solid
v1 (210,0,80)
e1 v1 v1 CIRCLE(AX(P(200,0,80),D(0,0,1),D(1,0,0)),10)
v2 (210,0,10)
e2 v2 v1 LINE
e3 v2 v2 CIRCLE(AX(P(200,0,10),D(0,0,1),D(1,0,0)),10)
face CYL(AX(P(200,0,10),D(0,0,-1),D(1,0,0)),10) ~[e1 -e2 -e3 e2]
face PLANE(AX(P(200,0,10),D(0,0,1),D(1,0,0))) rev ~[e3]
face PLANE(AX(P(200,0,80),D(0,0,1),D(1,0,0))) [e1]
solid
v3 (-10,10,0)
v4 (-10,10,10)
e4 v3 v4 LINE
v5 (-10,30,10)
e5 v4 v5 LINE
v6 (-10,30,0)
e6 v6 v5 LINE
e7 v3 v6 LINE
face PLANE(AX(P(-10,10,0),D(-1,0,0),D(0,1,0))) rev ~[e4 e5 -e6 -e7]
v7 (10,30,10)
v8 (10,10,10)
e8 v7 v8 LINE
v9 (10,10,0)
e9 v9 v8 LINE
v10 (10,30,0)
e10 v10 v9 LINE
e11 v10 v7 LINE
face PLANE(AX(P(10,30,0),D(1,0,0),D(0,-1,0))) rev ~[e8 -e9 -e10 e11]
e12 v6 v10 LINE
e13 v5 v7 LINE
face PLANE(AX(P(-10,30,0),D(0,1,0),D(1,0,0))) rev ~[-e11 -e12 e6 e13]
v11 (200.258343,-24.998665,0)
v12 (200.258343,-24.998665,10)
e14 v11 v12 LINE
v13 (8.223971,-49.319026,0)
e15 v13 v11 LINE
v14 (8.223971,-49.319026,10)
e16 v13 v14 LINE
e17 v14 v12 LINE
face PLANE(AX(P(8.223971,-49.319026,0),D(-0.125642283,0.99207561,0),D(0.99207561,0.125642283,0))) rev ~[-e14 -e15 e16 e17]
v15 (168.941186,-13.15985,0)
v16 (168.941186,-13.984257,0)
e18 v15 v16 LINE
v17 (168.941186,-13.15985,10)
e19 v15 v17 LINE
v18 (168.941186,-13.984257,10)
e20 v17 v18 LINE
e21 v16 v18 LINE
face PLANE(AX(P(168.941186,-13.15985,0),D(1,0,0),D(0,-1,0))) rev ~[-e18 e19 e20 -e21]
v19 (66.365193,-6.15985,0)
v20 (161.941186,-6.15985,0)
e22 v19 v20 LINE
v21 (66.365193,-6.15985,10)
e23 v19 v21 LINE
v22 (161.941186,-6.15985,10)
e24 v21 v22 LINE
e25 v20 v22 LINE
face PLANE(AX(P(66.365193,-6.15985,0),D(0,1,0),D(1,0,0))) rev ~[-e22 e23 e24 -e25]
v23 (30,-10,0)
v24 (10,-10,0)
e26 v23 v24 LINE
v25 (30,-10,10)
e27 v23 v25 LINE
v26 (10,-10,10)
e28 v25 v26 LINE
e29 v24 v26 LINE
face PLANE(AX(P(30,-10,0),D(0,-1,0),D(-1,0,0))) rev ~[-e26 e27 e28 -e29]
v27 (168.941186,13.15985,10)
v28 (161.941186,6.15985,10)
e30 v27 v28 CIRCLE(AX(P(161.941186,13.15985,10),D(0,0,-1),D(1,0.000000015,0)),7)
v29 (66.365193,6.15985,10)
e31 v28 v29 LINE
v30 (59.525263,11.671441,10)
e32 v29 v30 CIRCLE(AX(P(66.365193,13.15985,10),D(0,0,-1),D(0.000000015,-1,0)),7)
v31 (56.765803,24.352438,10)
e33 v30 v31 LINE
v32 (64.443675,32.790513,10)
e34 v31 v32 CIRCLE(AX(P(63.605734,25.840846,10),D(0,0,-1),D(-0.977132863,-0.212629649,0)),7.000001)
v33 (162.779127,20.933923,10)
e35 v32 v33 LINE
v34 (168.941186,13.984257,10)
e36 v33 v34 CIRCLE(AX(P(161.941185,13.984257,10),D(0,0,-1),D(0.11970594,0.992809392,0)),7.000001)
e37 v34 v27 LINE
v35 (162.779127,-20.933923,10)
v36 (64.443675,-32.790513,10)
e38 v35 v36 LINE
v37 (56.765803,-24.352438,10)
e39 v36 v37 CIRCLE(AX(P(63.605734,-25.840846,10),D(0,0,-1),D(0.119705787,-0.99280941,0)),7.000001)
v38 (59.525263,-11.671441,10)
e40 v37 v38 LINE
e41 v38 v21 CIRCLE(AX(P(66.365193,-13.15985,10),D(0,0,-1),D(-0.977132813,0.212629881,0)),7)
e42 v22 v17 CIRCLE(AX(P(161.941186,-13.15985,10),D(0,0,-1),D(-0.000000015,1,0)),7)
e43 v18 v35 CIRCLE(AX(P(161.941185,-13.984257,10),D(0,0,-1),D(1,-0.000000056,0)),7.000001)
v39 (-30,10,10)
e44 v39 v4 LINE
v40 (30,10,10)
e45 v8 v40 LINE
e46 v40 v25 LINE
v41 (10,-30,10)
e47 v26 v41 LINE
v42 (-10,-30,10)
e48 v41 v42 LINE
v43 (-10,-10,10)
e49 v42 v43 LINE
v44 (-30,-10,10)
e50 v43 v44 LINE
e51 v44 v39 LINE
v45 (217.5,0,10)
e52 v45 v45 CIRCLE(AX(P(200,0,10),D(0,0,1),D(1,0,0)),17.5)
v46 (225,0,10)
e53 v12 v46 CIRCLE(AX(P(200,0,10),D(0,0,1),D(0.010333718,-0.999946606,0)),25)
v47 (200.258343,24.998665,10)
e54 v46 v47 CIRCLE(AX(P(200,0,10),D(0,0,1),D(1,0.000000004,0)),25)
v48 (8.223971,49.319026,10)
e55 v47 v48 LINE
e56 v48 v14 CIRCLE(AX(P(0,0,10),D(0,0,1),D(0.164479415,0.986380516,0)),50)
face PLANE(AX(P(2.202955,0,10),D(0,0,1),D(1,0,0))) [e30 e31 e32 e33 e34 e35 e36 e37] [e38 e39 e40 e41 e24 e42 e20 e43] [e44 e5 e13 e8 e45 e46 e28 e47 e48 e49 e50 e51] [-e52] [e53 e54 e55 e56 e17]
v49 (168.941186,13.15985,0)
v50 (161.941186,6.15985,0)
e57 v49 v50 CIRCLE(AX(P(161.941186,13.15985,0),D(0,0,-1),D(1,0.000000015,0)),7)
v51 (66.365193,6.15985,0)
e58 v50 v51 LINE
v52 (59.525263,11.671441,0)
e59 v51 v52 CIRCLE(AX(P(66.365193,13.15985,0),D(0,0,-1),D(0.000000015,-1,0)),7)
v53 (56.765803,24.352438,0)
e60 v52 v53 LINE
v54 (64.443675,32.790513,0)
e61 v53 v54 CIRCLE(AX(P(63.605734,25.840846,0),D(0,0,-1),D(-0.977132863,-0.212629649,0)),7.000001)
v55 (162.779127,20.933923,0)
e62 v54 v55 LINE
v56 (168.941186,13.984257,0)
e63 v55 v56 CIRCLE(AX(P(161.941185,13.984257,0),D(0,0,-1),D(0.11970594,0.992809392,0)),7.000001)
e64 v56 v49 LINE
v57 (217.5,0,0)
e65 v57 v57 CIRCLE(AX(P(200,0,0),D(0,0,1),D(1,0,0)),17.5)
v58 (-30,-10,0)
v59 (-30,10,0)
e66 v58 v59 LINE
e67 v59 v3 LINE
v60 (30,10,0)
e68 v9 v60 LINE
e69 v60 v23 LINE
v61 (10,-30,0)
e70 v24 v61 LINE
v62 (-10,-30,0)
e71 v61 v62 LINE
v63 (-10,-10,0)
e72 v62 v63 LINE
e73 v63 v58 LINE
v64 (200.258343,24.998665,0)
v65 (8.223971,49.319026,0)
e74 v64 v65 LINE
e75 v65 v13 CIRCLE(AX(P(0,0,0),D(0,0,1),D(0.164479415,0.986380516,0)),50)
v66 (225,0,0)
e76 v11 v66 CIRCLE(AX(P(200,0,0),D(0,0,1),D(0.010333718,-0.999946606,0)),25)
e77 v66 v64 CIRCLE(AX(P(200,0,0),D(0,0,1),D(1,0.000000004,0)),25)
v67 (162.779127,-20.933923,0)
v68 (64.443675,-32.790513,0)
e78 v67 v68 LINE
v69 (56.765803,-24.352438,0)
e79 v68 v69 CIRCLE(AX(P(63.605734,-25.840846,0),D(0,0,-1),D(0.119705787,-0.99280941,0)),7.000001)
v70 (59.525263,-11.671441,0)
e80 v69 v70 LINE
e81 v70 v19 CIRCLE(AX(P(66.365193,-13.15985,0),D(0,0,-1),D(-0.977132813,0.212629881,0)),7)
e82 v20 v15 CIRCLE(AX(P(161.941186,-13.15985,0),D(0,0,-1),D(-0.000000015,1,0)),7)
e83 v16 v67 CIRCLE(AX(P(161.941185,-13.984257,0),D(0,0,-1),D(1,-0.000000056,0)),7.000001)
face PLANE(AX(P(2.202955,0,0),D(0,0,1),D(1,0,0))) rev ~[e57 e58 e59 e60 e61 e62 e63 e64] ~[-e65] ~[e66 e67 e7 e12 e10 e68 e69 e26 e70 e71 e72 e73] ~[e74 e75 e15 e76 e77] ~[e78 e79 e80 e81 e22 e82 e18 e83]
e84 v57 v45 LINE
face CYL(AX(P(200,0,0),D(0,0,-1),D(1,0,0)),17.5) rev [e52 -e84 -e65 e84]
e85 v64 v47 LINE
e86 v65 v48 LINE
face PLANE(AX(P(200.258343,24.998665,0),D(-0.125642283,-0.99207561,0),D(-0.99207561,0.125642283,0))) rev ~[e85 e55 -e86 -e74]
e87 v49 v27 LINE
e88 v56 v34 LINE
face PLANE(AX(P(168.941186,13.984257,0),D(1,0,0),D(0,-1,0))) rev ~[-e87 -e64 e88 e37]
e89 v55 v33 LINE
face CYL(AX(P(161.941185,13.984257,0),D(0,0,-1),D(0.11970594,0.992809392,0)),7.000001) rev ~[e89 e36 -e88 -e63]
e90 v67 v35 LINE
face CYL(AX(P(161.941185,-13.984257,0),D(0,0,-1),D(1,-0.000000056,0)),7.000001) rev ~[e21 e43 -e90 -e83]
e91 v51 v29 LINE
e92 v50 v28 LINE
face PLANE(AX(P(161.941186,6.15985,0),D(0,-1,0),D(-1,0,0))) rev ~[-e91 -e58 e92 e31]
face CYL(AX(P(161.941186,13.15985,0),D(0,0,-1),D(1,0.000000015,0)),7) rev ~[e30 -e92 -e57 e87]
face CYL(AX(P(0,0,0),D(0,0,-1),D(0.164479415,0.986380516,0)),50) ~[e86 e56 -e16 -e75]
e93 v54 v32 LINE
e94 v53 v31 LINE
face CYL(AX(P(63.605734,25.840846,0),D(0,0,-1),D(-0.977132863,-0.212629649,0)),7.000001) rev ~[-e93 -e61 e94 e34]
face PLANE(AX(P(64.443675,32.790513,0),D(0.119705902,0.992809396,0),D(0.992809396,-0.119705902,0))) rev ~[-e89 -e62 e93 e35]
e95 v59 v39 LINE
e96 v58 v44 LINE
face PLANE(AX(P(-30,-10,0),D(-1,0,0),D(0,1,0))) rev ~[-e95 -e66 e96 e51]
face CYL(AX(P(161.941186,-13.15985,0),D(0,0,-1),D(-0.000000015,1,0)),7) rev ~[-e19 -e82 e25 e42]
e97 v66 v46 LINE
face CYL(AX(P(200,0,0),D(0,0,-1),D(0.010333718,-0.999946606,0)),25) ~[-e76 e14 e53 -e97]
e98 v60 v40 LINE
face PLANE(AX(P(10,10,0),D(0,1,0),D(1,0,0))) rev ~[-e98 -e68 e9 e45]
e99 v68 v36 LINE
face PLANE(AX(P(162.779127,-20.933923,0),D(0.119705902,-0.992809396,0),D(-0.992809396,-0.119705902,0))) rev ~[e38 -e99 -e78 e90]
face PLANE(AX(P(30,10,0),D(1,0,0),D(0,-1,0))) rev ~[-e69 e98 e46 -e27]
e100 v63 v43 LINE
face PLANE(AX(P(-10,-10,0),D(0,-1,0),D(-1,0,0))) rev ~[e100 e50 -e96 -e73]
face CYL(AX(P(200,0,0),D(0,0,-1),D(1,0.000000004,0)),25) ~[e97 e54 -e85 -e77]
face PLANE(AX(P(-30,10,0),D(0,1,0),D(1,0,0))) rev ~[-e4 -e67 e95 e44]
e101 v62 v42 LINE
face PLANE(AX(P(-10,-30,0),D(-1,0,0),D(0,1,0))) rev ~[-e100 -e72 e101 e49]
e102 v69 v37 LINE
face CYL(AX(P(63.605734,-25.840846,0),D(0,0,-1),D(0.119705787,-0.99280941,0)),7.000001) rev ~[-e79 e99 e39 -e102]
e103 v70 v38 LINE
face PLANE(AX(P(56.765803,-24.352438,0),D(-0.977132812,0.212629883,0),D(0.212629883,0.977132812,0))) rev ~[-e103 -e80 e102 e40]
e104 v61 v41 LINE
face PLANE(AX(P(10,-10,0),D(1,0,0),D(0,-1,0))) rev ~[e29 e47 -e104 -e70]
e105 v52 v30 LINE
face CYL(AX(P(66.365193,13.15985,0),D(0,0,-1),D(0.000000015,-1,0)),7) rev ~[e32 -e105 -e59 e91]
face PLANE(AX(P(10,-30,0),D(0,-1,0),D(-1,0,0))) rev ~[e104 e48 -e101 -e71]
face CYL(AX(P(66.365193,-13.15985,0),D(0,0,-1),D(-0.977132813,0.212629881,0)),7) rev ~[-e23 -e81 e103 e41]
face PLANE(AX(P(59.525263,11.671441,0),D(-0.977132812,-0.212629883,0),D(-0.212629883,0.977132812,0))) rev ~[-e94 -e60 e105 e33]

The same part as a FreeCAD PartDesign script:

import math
import FreeCAD as App
import Part
import Sketcher
from FreeCAD import Vector

doc = App.newDocument("Part")
body = doc.addObject("PartDesign::Body", "Body")

sketch1 = body.newObject("Sketcher::SketchObject", "Sketch")
sketch1.AttachmentSupport = (doc.getObject("XY_Plane"), [""])
sketch1.MapMode = "FlatFace"
sketch1.addGeometry(Part.ArcOfCircle(Part.Circle(Vector(0, 0, 0), Vector(0, 0, 1), 50), math.radians(81), math.radians(279)), False)
sketch1.addGeometry(Part.LineSegment(Vector(8.2, -49.3, 0), Vector(200.3, -25, 0)), False)
sketch1.addGeometry(Part.ArcOfCircle(Part.Circle(Vector(200, 0, 0), Vector(0, 0, 1), 25), math.radians(-89), math.radians(0)), False)
sketch1.addGeometry(Part.ArcOfCircle(Part.Circle(Vector(200, 0, 0), Vector(0, 0, 1), 25), math.radians(0), math.radians(89)), False)
sketch1.addGeometry(Part.LineSegment(Vector(200.3, 25, 0), Vector(8.2, 49.3, 0)), False)
sketch1.addGeometry(Part.LineSegment(Vector(56.8, -24.4, 0), Vector(59.5, -11.7, 0)), False)
sketch1.addGeometry(Part.ArcOfCircle(Part.Circle(Vector(66.4, -13.2, 0), Vector(0, 0, 1), 7), math.radians(90), math.radians(168)), False)
sketch1.addGeometry(Part.LineSegment(Vector(66.4, -6.2, 0), Vector(161.9, -6.2, 0)), False)
sketch1.addGeometry(Part.ArcOfCircle(Part.Circle(Vector(161.9, -13.2, 0), Vector(0, 0, 1), 7), math.radians(0), math.radians(90)), False)
sketch1.addGeometry(Part.LineSegment(Vector(168.9, -13.2, 0), Vector(168.9, -14, 0)), False)
sketch1.addGeometry(Part.ArcOfCircle(Part.Circle(Vector(161.9, -14, 0), Vector(0, 0, 1), 7), math.radians(-83), math.radians(0)), False)
sketch1.addGeometry(Part.LineSegment(Vector(162.8, -20.9, 0), Vector(64.4, -32.8, 0)), False)
sketch1.addGeometry(Part.ArcOfCircle(Part.Circle(Vector(63.6, -25.8, 0), Vector(0, 0, 1), 7), math.radians(168), math.radians(277)), False)
sketch1.addGeometry(Part.LineSegment(Vector(-10, 10, 0), Vector(-10, 30, 0)), False)
sketch1.addGeometry(Part.LineSegment(Vector(-10, 30, 0), Vector(10, 30, 0)), False)
sketch1.addGeometry(Part.LineSegment(Vector(10, 30, 0), Vector(10, 10, 0)), False)
sketch1.addGeometry(Part.LineSegment(Vector(10, 10, 0), Vector(30, 10, 0)), False)
sketch1.addGeometry(Part.LineSegment(Vector(30, 10, 0), Vector(30, -10, 0)), False)
sketch1.addGeometry(Part.LineSegment(Vector(30, -10, 0), Vector(10, -10, 0)), False)
sketch1.addGeometry(Part.LineSegment(Vector(10, -10, 0), Vector(10, -30, 0)), False)
sketch1.addGeometry(Part.LineSegment(Vector(10, -30, 0), Vector(-10, -30, 0)), False)
sketch1.addGeometry(Part.LineSegment(Vector(-10, -30, 0), Vector(-10, -10, 0)), False)
sketch1.addGeometry(Part.LineSegment(Vector(-10, -10, 0), Vector(-30, -10, 0)), False)
sketch1.addGeometry(Part.LineSegment(Vector(-30, -10, 0), Vector(-30, 10, 0)), False)
sketch1.addGeometry(Part.LineSegment(Vector(-30, 10, 0), Vector(-10, 10, 0)), False)
sketch1.addGeometry(Part.Circle(Vector(200, 0, 0), Vector(0, 0, 1), 17.5), False)
sketch1.addGeometry(Part.ArcOfCircle(Part.Circle(Vector(66.4, 13.2, 0), Vector(0, 0, 1), 7), math.radians(-168), math.radians(-90)), False)
sketch1.addGeometry(Part.LineSegment(Vector(59.5, 11.7, 0), Vector(56.8, 24.4, 0)), False)
sketch1.addGeometry(Part.ArcOfCircle(Part.Circle(Vector(63.6, 25.8, 0), Vector(0, 0, 1), 7), math.radians(83), math.radians(192)), False)
sketch1.addGeometry(Part.LineSegment(Vector(64.4, 32.8, 0), Vector(162.8, 20.9, 0)), False)
sketch1.addGeometry(Part.ArcOfCircle(Part.Circle(Vector(161.9, 14, 0), Vector(0, 0, 1), 7), math.radians(0), math.radians(83)), False)
sketch1.addGeometry(Part.LineSegment(Vector(168.9, 14, 0), Vector(168.9, 13.2, 0)), False)
sketch1.addGeometry(Part.ArcOfCircle(Part.Circle(Vector(161.9, 13.2, 0), Vector(0, 0, 1), 7), math.radians(-90), math.radians(0)), False)
sketch1.addGeometry(Part.LineSegment(Vector(161.9, 6.2, 0), Vector(66.4, 6.2, 0)), False)
sketch1.addConstraint(Sketcher.Constraint("Coincident", 0, 2, 1, 1))
sketch1.addConstraint(Sketcher.Constraint("Coincident", 1, 2, 2, 1))
sketch1.addConstraint(Sketcher.Constraint("Tangent", 2, 2, 3, 1))
sketch1.addConstraint(Sketcher.Constraint("Coincident", 3, 2, 4, 1))
sketch1.addConstraint(Sketcher.Constraint("Coincident", 4, 2, 0, 1))
sketch1.addConstraint(Sketcher.Constraint("Tangent", 5, 2, 6, 2))
sketch1.addConstraint(Sketcher.Constraint("Tangent", 6, 1, 7, 1))
sketch1.addConstraint(Sketcher.Constraint("Tangent", 7, 2, 8, 2))
sketch1.addConstraint(Sketcher.Constraint("Tangent", 8, 1, 9, 1))
sketch1.addConstraint(Sketcher.Constraint("Tangent", 9, 2, 10, 2))
sketch1.addConstraint(Sketcher.Constraint("Tangent", 10, 1, 11, 1))
sketch1.addConstraint(Sketcher.Constraint("Tangent", 11, 2, 12, 2))
sketch1.addConstraint(Sketcher.Constraint("Tangent", 12, 1, 5, 1))
sketch1.addConstraint(Sketcher.Constraint("Coincident", 13, 2, 14, 1))
sketch1.addConstraint(Sketcher.Constraint("Coincident", 14, 2, 15, 1))
sketch1.addConstraint(Sketcher.Constraint("Coincident", 15, 2, 16, 1))
sketch1.addConstraint(Sketcher.Constraint("Coincident", 16, 2, 17, 1))
sketch1.addConstraint(Sketcher.Constraint("Coincident", 17, 2, 18, 1))
sketch1.addConstraint(Sketcher.Constraint("Coincident", 18, 2, 19, 1))
sketch1.addConstraint(Sketcher.Constraint("Coincident", 19, 2, 20, 1))
sketch1.addConstraint(Sketcher.Constraint("Coincident", 20, 2, 21, 1))
sketch1.addConstraint(Sketcher.Constraint("Coincident", 21, 2, 22, 1))
sketch1.addConstraint(Sketcher.Constraint("Coincident", 22, 2, 23, 1))
sketch1.addConstraint(Sketcher.Constraint("Coincident", 23, 2, 24, 1))
sketch1.addConstraint(Sketcher.Constraint("Coincident", 24, 2, 13, 1))
sketch1.addConstraint(Sketcher.Constraint("Tangent", 26, 1, 27, 1))
sketch1.addConstraint(Sketcher.Constraint("Tangent", 27, 2, 28, 2))
sketch1.addConstraint(Sketcher.Constraint("Tangent", 28, 1, 29, 1))
sketch1.addConstraint(Sketcher.Constraint("Tangent", 29, 2, 30, 2))
sketch1.addConstraint(Sketcher.Constraint("Tangent", 30, 1, 31, 1))
sketch1.addConstraint(Sketcher.Constraint("Tangent", 31, 2, 32, 2))
sketch1.addConstraint(Sketcher.Constraint("Tangent", 32, 1, 33, 1))
sketch1.addConstraint(Sketcher.Constraint("Tangent", 33, 2, 26, 2))
sketch1.addConstraint(Sketcher.Constraint("Horizontal", 7))
sketch1.addConstraint(Sketcher.Constraint("Vertical", 9))
sketch1.addConstraint(Sketcher.Constraint("Vertical", 13))
sketch1.addConstraint(Sketcher.Constraint("Horizontal", 14))
sketch1.addConstraint(Sketcher.Constraint("Vertical", 15))
sketch1.addConstraint(Sketcher.Constraint("Horizontal", 16))
sketch1.addConstraint(Sketcher.Constraint("Vertical", 17))
sketch1.addConstraint(Sketcher.Constraint("Horizontal", 18))
sketch1.addConstraint(Sketcher.Constraint("Vertical", 19))
sketch1.addConstraint(Sketcher.Constraint("Horizontal", 20))
sketch1.addConstraint(Sketcher.Constraint("Vertical", 21))
sketch1.addConstraint(Sketcher.Constraint("Horizontal", 22))
sketch1.addConstraint(Sketcher.Constraint("Vertical", 23))
sketch1.addConstraint(Sketcher.Constraint("Horizontal", 24))
sketch1.addConstraint(Sketcher.Constraint("Vertical", 31))
sketch1.addConstraint(Sketcher.Constraint("Horizontal", 33))
sketch1.addConstraint(Sketcher.Constraint("Coincident", 0, 3, -1, 1))
sketch1.addConstraint(Sketcher.Constraint("Coincident", 25, 3, 2, 3))
sketch1.addConstraint(Sketcher.Constraint("Equal", 2, 3))
sketch1.addConstraint(Sketcher.Constraint("Equal", 6, 8))
sketch1.addConstraint(Sketcher.Constraint("Equal", 8, 10))
sketch1.addConstraint(Sketcher.Constraint("Equal", 10, 12))
sketch1.addConstraint(Sketcher.Constraint("Equal", 12, 26))
sketch1.addConstraint(Sketcher.Constraint("Equal", 26, 28))
sketch1.addConstraint(Sketcher.Constraint("Equal", 28, 30))
sketch1.addConstraint(Sketcher.Constraint("Equal", 30, 32))
sketch1.addConstraint(Sketcher.Constraint("Symmetric", 13, 2, 19, 2, -1, 1))
sketch1.addConstraint(Sketcher.Constraint("Symmetric", 15, 2, 21, 2, -1, 1))
sketch1.addConstraint(Sketcher.Constraint("Symmetric", 17, 2, 23, 2, -1, 1))
sketch1.addConstraint(Sketcher.Constraint("Symmetric", 18, 2, 21, 2, -2))
sketch1.addConstraint(Sketcher.Constraint("Symmetric", 6, 3, 26, 3, -1))
sketch1.addConstraint(Sketcher.Constraint("Symmetric", 12, 3, 28, 3, -1))
sketch1.addConstraint(Sketcher.Constraint("Symmetric", 10, 3, 30, 3, -1))
sketch1.addConstraint(Sketcher.Constraint("Symmetric", 1, 2, 3, 2, -1))
sketch1.addConstraint(Sketcher.Constraint("PointOnObject", 2, 2, -1))
sketch1.addConstraint(Sketcher.Constraint("Vertical", 0, 2, 4, 2))
sketch1.addConstraint(Sketcher.Constraint("Equal", 14, 16))
sketch1.addConstraint(Sketcher.Constraint("Equal", 24, 13))
sketch1.addConstraint(Sketcher.Constraint("Equal", 15, 17))
sketch1.addConstraint(Sketcher.Constraint("Diameter", 25, 35.0))
sketch1.addConstraint(Sketcher.Constraint("Radius", 0, 50.0))
sketch1.addConstraint(Sketcher.Constraint("Radius", 2, 25.0))
sketch1.addConstraint(Sketcher.Constraint("Radius", 6, 7.0))
sketch1.addConstraint(Sketcher.Constraint("DistanceX", 14, 1, 14, 2, 20.0))
sketch1.addConstraint(Sketcher.Constraint("DistanceX", -1, 1, 2, 3, 200.0))
sketch1.addConstraint(Sketcher.Constraint("DistanceY", 6, 3, 26, 3, 26.3197))
sketch1.addConstraint(Sketcher.Constraint("Distance", 5, 12.977762))
sketch1.addConstraint(Sketcher.Constraint("DistanceX", 7, 1, 7, 2, 95.575993))
sketch1.addConstraint(Sketcher.Constraint("DistanceY", 9, 2, 9, 1, 0.824407))
sketch1.addConstraint(Sketcher.Constraint("DistanceX", -1, 1, 0, 2, 8.223971))
sketch1.addConstraint(Sketcher.Constraint("DistanceY", 5, 2, -1, 1, 11.671441))
sketch1.addConstraint(Sketcher.Constraint("DistanceX", 0, 2, 6, 3, 58.141222))
sketch1.addConstraint(Sketcher.Constraint("DistanceY", 1, 2, 10, 3, 11.014408))
pad1 = body.newObject("PartDesign::Pad", "Pad")
pad1.Profile = sketch1
pad1.Length = 10
body2 = doc.addObject("PartDesign::Body", "Body001")

sketch2 = body2.newObject("Sketcher::SketchObject", "Sketch001")
sketch2.AttachmentSupport = (doc.getObject("XY_Plane001"), [""])
sketch2.MapMode = "FlatFace"
sketch2.AttachmentOffset = App.Placement(Vector(0, 0, 10), App.Rotation())
sketch2.addGeometry(Part.Circle(Vector(200, 0, 0), Vector(0, 0, 1), 10), False)
sketch2.addConstraint(Sketcher.Constraint("PointOnObject", 0, 3, -1))
sketch2.addConstraint(Sketcher.Constraint("Diameter", 0, 20.0))
sketch2.addConstraint(Sketcher.Constraint("DistanceX", -1, 1, 0, 3, 200.0))
pad2 = body2.newObject("PartDesign::Pad", "Pad001")
pad2.Profile = sketch2
pad2.Length = 70

doc.recompute()
